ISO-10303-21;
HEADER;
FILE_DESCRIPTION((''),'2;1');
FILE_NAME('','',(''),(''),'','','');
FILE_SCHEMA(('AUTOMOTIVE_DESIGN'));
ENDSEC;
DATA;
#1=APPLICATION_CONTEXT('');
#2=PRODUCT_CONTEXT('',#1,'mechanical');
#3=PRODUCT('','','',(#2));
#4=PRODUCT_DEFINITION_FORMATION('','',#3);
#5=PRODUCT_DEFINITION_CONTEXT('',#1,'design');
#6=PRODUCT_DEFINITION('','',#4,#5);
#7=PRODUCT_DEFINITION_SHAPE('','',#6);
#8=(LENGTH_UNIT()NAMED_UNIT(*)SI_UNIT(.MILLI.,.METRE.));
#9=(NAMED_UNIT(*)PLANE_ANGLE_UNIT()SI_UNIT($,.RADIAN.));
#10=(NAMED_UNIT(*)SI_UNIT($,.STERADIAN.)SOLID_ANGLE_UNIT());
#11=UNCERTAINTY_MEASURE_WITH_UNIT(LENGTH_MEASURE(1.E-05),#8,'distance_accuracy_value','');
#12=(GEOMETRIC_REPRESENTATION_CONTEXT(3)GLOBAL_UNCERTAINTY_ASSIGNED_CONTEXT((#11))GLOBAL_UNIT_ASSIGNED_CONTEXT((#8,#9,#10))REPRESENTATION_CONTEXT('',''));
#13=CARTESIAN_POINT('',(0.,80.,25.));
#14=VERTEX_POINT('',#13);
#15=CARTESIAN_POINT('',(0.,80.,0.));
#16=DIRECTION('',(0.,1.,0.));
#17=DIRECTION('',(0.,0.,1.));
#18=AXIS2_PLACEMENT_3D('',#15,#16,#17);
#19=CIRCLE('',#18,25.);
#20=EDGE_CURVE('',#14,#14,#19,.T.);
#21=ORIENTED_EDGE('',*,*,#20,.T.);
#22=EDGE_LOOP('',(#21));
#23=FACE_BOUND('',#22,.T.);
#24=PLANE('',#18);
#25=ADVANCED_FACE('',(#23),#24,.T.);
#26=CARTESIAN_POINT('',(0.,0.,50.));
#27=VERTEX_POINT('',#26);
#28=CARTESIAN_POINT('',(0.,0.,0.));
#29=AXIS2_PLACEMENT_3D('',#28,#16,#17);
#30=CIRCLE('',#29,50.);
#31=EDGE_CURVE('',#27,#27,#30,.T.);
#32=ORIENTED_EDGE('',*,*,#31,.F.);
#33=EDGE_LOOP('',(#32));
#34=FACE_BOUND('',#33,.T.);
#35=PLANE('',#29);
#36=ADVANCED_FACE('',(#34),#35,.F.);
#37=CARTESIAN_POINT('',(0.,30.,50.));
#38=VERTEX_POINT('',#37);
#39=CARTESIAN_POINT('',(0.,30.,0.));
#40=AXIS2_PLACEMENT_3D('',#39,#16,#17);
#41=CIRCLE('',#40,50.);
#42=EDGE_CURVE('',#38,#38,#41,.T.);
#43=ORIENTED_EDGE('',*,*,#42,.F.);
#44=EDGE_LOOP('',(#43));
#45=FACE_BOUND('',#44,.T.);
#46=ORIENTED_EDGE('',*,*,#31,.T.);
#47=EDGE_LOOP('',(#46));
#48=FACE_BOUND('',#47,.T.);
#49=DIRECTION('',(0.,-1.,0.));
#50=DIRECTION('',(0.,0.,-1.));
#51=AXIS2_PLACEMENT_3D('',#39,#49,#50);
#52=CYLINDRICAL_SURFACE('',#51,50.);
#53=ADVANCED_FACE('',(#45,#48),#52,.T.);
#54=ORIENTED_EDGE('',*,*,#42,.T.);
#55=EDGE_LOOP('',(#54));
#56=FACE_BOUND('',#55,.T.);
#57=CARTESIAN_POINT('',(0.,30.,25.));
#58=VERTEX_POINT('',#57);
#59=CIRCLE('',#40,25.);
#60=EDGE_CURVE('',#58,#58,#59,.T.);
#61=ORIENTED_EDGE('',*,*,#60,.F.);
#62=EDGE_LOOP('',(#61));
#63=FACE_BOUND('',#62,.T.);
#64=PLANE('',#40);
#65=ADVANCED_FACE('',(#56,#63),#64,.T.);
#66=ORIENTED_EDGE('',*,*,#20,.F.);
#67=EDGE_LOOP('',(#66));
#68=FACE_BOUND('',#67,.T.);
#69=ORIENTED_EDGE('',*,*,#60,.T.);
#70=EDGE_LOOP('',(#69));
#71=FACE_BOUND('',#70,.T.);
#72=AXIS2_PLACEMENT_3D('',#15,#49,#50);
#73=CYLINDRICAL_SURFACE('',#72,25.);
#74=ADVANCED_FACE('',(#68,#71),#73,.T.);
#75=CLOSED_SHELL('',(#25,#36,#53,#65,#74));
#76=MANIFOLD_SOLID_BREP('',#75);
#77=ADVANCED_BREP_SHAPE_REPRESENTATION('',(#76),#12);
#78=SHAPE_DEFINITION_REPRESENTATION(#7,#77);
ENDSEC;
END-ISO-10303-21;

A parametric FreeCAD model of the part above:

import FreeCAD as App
import Part
import Sketcher

V = App.Vector

doc = App.newDocument("Part")
params = doc.addObject("Spreadsheet::Sheet", "Params")
for row, (alias, value) in enumerate([
    ("sketch1_diameter", "100 mm"),
    ("pad1_length", "30 mm"),
    ("sketch2_diameter", "50 mm"),
    ("pad2_length", "50 mm"),
], start=1):
    params.set(f"A{row}", alias)
    params.set(f"B{row}", "=" + value)
    params.setAlias(f"B{row}", alias)

body = doc.addObject("PartDesign::Body", "Body")

# Sketch on XZ plane
sketch1 = body.newObject("Sketcher::SketchObject", "Sketch")
sketch1.AttachmentSupport = (doc.getObject("XZ_Plane"), [""])
sketch1.MapMode = "FlatFace"
sketch1.addGeometry(Part.Circle(V(0, 0, 0), V(0, 0, 1), 50), False)
sketch1.addConstraint([
    Sketcher.Constraint("Coincident", 0, 3, -1, 1),
    Sketcher.Constraint("Diameter", 0, 100.0),
])
sketch1.setExpression("Constraints[1]", "Params.sketch1_diameter")
pad1 = body.newObject("PartDesign::Pad", "Pad")
pad1.Profile = sketch1
pad1.setExpression("Length", "Params.pad1_length")
pad1.Reversed = True

# Sketch on XZ plane
sketch2 = body.newObject("Sketcher::SketchObject", "Sketch001")
sketch2.AttachmentSupport = (doc.getObject("XZ_Plane"), [""])
sketch2.MapMode = "FlatFace"
sketch2.AttachmentOffset = App.Placement(V(0, 0, -30), App.Rotation())
sketch2.addGeometry(Part.Circle(V(0, 0, 0), V(0, 0, 1), 25), False)
sketch2.addConstraint([
    Sketcher.Constraint("Coincident", 0, 3, -1, 1),
    Sketcher.Constraint("Diameter", 0, 50.0),
])
sketch2.setExpression("Constraints[1]", "Params.sketch2_diameter")
pad2 = body.newObject("PartDesign::Pad", "Pad001")
pad2.Profile = sketch2
pad2.setExpression("Length", "Params.pad2_length")
pad2.Reversed = True

doc.recompute()
